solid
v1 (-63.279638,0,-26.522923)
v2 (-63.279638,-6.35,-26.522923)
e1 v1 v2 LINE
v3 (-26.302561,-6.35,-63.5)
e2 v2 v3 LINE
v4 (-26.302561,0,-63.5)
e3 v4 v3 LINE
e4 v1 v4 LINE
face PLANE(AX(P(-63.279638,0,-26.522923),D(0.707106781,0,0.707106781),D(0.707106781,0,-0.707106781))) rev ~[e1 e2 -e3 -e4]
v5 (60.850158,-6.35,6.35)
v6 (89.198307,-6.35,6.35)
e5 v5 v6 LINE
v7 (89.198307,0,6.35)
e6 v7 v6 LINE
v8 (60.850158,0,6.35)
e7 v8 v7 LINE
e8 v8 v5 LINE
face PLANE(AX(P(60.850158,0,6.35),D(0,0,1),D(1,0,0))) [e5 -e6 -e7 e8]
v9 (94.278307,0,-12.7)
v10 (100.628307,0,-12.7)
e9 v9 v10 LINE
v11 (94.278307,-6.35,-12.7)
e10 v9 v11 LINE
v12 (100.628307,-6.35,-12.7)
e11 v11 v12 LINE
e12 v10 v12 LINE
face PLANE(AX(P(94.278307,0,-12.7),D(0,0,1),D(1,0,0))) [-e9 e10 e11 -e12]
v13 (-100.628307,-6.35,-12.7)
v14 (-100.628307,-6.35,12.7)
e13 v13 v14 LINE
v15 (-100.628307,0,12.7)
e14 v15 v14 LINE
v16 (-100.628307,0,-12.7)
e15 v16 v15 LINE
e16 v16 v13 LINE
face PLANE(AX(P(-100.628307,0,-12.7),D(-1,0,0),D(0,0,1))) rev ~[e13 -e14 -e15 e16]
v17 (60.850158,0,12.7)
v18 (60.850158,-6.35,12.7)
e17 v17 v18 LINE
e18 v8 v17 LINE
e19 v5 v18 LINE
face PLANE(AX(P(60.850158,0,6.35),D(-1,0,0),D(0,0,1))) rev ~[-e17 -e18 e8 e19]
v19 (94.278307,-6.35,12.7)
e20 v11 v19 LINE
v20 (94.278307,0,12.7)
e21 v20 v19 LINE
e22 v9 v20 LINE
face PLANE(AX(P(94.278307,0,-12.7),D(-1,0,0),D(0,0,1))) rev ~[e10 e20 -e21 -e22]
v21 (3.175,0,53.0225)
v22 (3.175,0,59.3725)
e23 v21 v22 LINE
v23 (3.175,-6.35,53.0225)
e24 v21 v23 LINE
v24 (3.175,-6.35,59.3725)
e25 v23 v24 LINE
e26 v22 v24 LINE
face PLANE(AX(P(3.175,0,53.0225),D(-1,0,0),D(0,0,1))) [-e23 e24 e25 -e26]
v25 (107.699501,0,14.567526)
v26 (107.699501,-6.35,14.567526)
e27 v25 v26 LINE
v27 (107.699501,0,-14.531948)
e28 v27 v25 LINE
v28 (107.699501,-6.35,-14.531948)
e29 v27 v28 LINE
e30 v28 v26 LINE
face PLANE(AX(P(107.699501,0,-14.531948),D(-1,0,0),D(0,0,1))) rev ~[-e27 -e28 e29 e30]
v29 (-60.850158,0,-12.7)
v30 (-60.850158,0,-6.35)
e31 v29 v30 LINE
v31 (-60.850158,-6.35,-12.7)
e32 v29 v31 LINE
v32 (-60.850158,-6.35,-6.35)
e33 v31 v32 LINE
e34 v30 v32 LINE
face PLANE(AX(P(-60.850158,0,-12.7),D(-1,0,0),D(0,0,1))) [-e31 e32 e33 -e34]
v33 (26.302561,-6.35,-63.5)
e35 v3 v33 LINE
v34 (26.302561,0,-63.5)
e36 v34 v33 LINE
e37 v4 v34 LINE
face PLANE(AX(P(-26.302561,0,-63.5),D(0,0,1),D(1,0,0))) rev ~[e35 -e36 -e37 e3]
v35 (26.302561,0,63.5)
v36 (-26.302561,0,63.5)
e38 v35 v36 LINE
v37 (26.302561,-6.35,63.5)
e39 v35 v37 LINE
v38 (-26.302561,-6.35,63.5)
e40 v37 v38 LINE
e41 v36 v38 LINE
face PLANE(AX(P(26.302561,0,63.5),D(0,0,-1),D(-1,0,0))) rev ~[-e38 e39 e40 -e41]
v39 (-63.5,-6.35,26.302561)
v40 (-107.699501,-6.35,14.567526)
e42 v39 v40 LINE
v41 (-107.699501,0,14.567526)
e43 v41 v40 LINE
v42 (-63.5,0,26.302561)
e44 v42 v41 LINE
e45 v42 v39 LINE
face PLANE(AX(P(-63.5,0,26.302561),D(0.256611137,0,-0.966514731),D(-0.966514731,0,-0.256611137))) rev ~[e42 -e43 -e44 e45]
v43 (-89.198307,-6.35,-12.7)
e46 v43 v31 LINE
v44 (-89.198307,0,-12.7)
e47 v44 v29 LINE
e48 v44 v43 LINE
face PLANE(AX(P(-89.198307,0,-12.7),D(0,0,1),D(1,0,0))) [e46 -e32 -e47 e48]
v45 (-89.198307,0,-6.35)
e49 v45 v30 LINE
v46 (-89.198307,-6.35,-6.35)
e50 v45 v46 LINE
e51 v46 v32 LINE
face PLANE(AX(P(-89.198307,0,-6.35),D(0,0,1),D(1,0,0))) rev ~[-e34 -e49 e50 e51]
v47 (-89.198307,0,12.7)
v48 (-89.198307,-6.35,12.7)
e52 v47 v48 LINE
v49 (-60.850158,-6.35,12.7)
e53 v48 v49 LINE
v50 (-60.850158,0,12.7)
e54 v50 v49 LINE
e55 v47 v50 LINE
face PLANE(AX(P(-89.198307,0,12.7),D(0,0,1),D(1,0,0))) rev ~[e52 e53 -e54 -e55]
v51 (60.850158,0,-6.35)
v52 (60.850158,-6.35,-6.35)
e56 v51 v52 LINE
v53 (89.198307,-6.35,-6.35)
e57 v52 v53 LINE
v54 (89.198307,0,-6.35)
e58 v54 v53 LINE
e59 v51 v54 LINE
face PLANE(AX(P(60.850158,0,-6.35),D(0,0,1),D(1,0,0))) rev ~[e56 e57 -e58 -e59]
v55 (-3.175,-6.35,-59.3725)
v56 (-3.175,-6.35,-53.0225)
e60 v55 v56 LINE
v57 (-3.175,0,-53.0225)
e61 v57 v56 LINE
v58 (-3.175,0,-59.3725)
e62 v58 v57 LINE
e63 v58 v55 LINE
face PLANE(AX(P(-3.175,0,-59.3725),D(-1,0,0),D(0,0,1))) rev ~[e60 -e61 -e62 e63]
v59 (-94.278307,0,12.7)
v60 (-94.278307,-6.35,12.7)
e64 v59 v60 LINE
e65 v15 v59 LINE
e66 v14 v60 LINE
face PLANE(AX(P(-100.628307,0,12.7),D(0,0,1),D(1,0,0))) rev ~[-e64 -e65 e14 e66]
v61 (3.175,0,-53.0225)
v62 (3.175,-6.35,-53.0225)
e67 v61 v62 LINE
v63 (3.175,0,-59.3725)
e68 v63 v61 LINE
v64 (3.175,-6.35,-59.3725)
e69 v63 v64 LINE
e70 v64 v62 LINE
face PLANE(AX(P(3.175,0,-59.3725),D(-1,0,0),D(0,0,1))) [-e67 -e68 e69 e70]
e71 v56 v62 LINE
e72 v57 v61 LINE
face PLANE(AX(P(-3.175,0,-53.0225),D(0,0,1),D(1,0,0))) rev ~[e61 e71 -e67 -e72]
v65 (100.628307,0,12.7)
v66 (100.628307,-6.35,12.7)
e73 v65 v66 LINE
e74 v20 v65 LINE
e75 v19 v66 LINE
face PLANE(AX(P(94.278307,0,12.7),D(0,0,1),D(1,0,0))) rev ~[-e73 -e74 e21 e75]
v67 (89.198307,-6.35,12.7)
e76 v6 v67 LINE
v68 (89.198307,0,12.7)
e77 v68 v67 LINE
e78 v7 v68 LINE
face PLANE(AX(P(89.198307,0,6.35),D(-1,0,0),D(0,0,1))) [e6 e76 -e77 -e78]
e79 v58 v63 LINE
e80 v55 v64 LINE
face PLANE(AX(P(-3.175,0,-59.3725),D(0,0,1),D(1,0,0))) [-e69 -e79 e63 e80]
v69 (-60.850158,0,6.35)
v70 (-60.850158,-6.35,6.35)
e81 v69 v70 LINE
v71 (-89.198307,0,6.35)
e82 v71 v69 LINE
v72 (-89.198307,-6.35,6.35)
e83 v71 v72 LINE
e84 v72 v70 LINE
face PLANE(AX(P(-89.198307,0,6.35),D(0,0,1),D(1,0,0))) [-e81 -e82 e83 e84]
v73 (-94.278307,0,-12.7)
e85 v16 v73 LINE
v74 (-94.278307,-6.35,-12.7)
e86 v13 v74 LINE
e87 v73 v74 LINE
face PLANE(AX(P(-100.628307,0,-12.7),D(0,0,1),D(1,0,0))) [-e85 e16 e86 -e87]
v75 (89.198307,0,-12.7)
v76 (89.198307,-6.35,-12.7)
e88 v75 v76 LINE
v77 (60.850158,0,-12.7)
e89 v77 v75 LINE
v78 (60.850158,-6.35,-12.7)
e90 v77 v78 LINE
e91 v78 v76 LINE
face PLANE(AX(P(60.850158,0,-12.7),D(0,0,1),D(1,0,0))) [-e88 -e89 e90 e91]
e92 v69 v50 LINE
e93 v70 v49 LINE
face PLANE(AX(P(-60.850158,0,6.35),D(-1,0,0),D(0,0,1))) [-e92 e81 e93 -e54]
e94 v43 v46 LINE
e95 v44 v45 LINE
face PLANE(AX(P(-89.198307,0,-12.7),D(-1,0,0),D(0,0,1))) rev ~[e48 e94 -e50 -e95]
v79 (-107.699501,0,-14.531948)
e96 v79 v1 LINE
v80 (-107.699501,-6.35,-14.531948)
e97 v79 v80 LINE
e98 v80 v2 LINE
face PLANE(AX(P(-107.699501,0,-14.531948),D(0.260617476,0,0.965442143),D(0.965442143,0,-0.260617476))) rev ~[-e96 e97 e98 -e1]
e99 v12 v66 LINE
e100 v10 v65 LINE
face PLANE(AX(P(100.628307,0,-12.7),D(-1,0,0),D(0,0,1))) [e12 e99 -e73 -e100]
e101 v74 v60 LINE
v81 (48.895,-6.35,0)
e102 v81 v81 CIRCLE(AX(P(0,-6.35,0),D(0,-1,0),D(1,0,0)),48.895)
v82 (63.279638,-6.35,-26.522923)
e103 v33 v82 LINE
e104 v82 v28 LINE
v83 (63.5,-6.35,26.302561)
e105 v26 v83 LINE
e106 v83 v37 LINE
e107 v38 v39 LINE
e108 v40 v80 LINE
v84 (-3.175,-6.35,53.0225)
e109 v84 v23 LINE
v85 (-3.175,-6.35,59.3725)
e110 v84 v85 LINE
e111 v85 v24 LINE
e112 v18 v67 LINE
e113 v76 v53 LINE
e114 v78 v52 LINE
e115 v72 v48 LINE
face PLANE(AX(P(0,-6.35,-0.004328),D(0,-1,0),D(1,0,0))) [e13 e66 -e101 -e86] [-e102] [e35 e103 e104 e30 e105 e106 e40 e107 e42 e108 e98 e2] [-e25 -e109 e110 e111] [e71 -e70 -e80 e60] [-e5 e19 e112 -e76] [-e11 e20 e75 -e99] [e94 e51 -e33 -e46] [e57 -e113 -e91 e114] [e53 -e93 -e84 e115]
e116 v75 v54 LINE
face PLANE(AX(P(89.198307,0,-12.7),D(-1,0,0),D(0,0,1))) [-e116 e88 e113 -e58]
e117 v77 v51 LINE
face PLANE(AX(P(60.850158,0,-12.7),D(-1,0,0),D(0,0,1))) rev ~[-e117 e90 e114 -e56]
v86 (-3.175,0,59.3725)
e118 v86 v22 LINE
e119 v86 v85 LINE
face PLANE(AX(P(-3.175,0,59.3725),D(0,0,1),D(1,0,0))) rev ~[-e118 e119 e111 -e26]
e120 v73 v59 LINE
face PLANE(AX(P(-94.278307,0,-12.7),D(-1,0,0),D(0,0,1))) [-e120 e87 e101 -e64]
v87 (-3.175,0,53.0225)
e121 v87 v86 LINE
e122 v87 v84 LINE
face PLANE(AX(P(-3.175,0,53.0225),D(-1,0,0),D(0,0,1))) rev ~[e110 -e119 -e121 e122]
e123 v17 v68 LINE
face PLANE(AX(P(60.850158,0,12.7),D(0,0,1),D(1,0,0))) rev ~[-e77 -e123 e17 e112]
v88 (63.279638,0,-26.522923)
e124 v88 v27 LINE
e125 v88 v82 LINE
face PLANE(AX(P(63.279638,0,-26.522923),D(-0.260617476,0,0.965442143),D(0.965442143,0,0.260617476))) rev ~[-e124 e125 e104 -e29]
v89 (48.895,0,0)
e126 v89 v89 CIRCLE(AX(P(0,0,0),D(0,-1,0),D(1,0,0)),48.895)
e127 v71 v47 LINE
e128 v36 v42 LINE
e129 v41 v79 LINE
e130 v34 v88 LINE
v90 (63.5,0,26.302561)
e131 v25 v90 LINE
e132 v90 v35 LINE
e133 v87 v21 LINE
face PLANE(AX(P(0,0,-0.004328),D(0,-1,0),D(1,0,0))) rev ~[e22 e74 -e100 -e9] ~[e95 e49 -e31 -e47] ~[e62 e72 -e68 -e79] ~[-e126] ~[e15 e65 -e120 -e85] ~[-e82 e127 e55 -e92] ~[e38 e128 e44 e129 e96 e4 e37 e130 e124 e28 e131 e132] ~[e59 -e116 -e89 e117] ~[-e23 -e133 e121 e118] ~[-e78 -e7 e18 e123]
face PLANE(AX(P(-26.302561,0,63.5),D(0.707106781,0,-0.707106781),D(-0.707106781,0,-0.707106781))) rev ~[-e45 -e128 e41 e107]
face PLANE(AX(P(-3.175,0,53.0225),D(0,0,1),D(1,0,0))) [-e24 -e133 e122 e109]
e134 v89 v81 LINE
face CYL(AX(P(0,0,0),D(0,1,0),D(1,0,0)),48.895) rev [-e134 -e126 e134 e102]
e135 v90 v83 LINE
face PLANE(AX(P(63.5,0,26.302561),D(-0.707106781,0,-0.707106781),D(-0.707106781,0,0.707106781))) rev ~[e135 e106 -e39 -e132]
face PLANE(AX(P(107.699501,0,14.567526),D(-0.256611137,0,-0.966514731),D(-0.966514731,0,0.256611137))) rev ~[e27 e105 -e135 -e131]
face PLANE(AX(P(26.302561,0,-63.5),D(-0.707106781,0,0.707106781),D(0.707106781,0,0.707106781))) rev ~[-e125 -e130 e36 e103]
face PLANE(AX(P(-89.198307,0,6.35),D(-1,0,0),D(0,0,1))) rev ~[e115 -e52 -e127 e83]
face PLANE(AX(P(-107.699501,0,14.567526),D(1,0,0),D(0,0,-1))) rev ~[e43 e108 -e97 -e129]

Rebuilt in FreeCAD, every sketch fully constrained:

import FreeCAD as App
import Part
import Sketcher

V = App.Vector
Q = App.Units.Quantity

doc = App.newDocument("Part")
body = doc.addObject("PartDesign::Body", "Body")

sketch1 = body.newObject("Sketcher::SketchObject", "Sketch")
sketch1.AttachmentSupport = (doc.getObject("XZ_Plane"), [""])
sketch1.MapMode = "FlatFace"
sketch1.addGeometry(Part.LineSegment(V(26.302561, 63.5, 0), V(-26.302561, 63.5, 0)), False)
sketch1.addGeometry(Part.LineSegment(V(-26.302561, 63.5, 0), V(-63.5, 26.302561, 0)), False)
sketch1.addGeometry(Part.LineSegment(V(-63.5, 26.302561, 0), V(-107.699501, 14.567526, 0)), False)
sketch1.addGeometry(Part.LineSegment(V(-107.699501, 14.567526, 0), V(-107.699501, -14.531948, 0)), False)
sketch1.addGeometry(Part.LineSegment(V(-107.699501, -14.531948, 0), V(-63.279638, -26.522923, 0)), False)
sketch1.addGeometry(Part.LineSegment(V(-63.279638, -26.522923, 0), V(-26.302561, -63.5, 0)), False)
sketch1.addGeometry(Part.LineSegment(V(-26.302561, -63.5, 0), V(26.302561, -63.5, 0)), False)
sketch1.addGeometry(Part.LineSegment(V(26.302561, -63.5, 0), V(63.279638, -26.522923, 0)), False)
sketch1.addGeometry(Part.LineSegment(V(63.279638, -26.522923, 0), V(107.699501, -14.531948, 0)), False)
sketch1.addGeometry(Part.LineSegment(V(107.699501, -14.531948, 0), V(107.699501, 14.567526, 0)), False)
sketch1.addGeometry(Part.LineSegment(V(107.699501, 14.567526, 0), V(63.5, 26.302561, 0)), False)
sketch1.addGeometry(Part.LineSegment(V(63.5, 26.302561, 0), V(26.302561, 63.5, 0)), False)
sketch1.addGeometry(Part.LineSegment(V(-60.850158, -12.7, 0), V(-89.198307, -12.7, 0)), False)
sketch1.addGeometry(Part.LineSegment(V(-89.198307, -12.7, 0), V(-89.198307, -6.35, 0)), False)
sketch1.addGeometry(Part.LineSegment(V(-89.198307, -6.35, 0), V(-60.850158, -6.35, 0)), False)
sketch1.addGeometry(Part.LineSegment(V(-60.850158, -6.35, 0), V(-60.850158, -12.7, 0)), False)
sketch1.addGeometry(Part.LineSegment(V(3.175, -59.3725, 0), V(-3.175, -59.3725, 0)), False)
sketch1.addGeometry(Part.LineSegment(V(-3.175, -59.3725, 0), V(-3.175, -53.0225, 0)), False)
sketch1.addGeometry(Part.LineSegment(V(-3.175, -53.0225, 0), V(3.175, -53.0225, 0)), False)
sketch1.addGeometry(Part.LineSegment(V(3.175, -53.0225, 0), V(3.175, -59.3725, 0)), False)
sketch1.addGeometry(Part.LineSegment(V(89.198307, -12.7, 0), V(60.850158, -12.7, 0)), False)
sketch1.addGeometry(Part.LineSegment(V(60.850158, -12.7, 0), V(60.850158, -6.35, 0)), False)
sketch1.addGeometry(Part.LineSegment(V(60.850158, -6.35, 0), V(89.198307, -6.35, 0)), False)
sketch1.addGeometry(Part.LineSegment(V(89.198307, -6.35, 0), V(89.198307, -12.7, 0)), False)
sketch1.addGeometry(Part.LineSegment(V(-94.278307, -12.7, 0), V(-100.628307, -12.7, 0)), False)
sketch1.addGeometry(Part.LineSegment(V(-100.628307, -12.7, 0), V(-100.628307, 12.7, 0)), False)
sketch1.addGeometry(Part.LineSegment(V(-100.628307, 12.7, 0), V(-94.278307, 12.7, 0)), False)
sketch1.addGeometry(Part.LineSegment(V(-94.278307, 12.7, 0), V(-94.278307, -12.7, 0)), False)
sketch1.addGeometry(Part.LineSegment(V(-60.850158, 6.35, 0), V(-89.198307, 6.35, 0)), False)
sketch1.addGeometry(Part.LineSegment(V(-89.198307, 6.35, 0), V(-89.198307, 12.7, 0)), False)
sketch1.addGeometry(Part.LineSegment(V(-89.198307, 12.7, 0), V(-60.850158, 12.7, 0)), False)
sketch1.addGeometry(Part.LineSegment(V(-60.850158, 12.7, 0), V(-60.850158, 6.35, 0)), False)
sketch1.addGeometry(Part.Circle(V(0, 0, 0), V(0, 0, 1), 48.895), False)
sketch1.addGeometry(Part.LineSegment(V(89.198307, 6.35, 0), V(60.850158, 6.35, 0)), False)
sketch1.addGeometry(Part.LineSegment(V(60.850158, 6.35, 0), V(60.850158, 12.7, 0)), False)
sketch1.addGeometry(Part.LineSegment(V(60.850158, 12.7, 0), V(89.198307, 12.7, 0)), False)
sketch1.addGeometry(Part.LineSegment(V(89.198307, 12.7, 0), V(89.198307, 6.35, 0)), False)
sketch1.addGeometry(Part.LineSegment(V(100.628307, -12.7, 0), V(94.278307, -12.7, 0)), False)
sketch1.addGeometry(Part.LineSegment(V(94.278307, -12.7, 0), V(94.278307, 12.7, 0)), False)
sketch1.addGeometry(Part.LineSegment(V(94.278307, 12.7, 0), V(100.628307, 12.7, 0)), False)
sketch1.addGeometry(Part.LineSegment(V(100.628307, 12.7, 0), V(100.628307, -12.7, 0)), False)
sketch1.addGeometry(Part.LineSegment(V(3.175, 53.0225, 0), V(-3.175, 53.0225, 0)), False)
sketch1.addGeometry(Part.LineSegment(V(-3.175, 53.0225, 0), V(-3.175, 59.3725, 0)), False)
sketch1.addGeometry(Part.LineSegment(V(-3.175, 59.3725, 0), V(3.175, 59.3725, 0)), False)
sketch1.addGeometry(Part.LineSegment(V(3.175, 59.3725, 0), V(3.175, 53.0225, 0)), False)
sketch1.addConstraint(Sketcher.Constraint("Coincident", 0, 2, 1, 1))
sketch1.addConstraint(Sketcher.Constraint("Coincident", 1, 2, 2, 1))
sketch1.addConstraint(Sketcher.Constraint("Coincident", 2, 2, 3, 1))
sketch1.addConstraint(Sketcher.Constraint("Coincident", 3, 2, 4, 1))
sketch1.addConstraint(Sketcher.Constraint("Coincident", 4, 2, 5, 1))
sketch1.addConstraint(Sketcher.Constraint("Coincident", 5, 2, 6, 1))
sketch1.addConstraint(Sketcher.Constraint("Coincident", 6, 2, 7, 1))
sketch1.addConstraint(Sketcher.Constraint("Coincident", 7, 2, 8, 1))
sketch1.addConstraint(Sketcher.Constraint("Coincident", 8, 2, 9, 1))
sketch1.addConstraint(Sketcher.Constraint("Coincident", 9, 2, 10, 1))
sketch1.addConstraint(Sketcher.Constraint("Coincident", 10, 2, 11, 1))
sketch1.addConstraint(Sketcher.Constraint("Coincident", 11, 2, 0, 1))
sketch1.addConstraint(Sketcher.Constraint("Coincident", 12, 2, 13, 1))
sketch1.addConstraint(Sketcher.Constraint("Coincident", 13, 2, 14, 1))
sketch1.addConstraint(Sketcher.Constraint("Coincident", 14, 2, 15, 1))
sketch1.addConstraint(Sketcher.Constraint("Coincident", 15, 2, 12, 1))
sketch1.addConstraint(Sketcher.Constraint("Coincident", 16, 2, 17, 1))
sketch1.addConstraint(Sketcher.Constraint("Coincident", 17, 2, 18, 1))
sketch1.addConstraint(Sketcher.Constraint("Coincident", 18, 2, 19, 1))
sketch1.addConstraint(Sketcher.Constraint("Coincident", 19, 2, 16, 1))
sketch1.addConstraint(Sketcher.Constraint("Coincident", 20, 2, 21, 1))
sketch1.addConstraint(Sketcher.Constraint("Coincident", 21, 2, 22, 1))
sketch1.addConstraint(Sketcher.Constraint("Coincident", 22, 2, 23, 1))
sketch1.addConstraint(Sketcher.Constraint("Coincident", 23, 2, 20, 1))
sketch1.addConstraint(Sketcher.Constraint("Coincident", 24, 2, 25, 1))
sketch1.addConstraint(Sketcher.Constraint("Coincident", 25, 2, 26, 1))
sketch1.addConstraint(Sketcher.Constraint("Coincident", 26, 2, 27, 1))
sketch1.addConstraint(Sketcher.Constraint("Coincident", 27, 2, 24, 1))
sketch1.addConstraint(Sketcher.Constraint("Coincident", 28, 2, 29, 1))
sketch1.addConstraint(Sketcher.Constraint("Coincident", 29, 2, 30, 1))
sketch1.addConstraint(Sketcher.Constraint("Coincident", 30, 2, 31, 1))
sketch1.addConstraint(Sketcher.Constraint("Coincident", 31, 2, 28, 1))
sketch1.addConstraint(Sketcher.Constraint("Coincident", 33, 2, 34, 1))
sketch1.addConstraint(Sketcher.Constraint("Coincident", 34, 2, 35, 1))
sketch1.addConstraint(Sketcher.Constraint("Coincident", 35, 2, 36, 1))
sketch1.addConstraint(Sketcher.Constraint("Coincident", 36, 2, 33, 1))
sketch1.addConstraint(Sketcher.Constraint("Coincident", 37, 2, 38, 1))
sketch1.addConstraint(Sketcher.Constraint("Coincident", 38, 2, 39, 1))
sketch1.addConstraint(Sketcher.Constraint("Coincident", 39, 2, 40, 1))
sketch1.addConstraint(Sketcher.Constraint("Coincident", 40, 2, 37, 1))
sketch1.addConstraint(Sketcher.Constraint("Coincident", 41, 2, 42, 1))
sketch1.addConstraint(Sketcher.Constraint("Coincident", 42, 2, 43, 1))
sketch1.addConstraint(Sketcher.Constraint("Coincident", 43, 2, 44, 1))
sketch1.addConstraint(Sketcher.Constraint("Coincident", 44, 2, 41, 1))
sketch1.addConstraint(Sketcher.Constraint("Horizontal", 0))
sketch1.addConstraint(Sketcher.Constraint("Vertical", 3))
sketch1.addConstraint(Sketcher.Constraint("Horizontal", 6))
sketch1.addConstraint(Sketcher.Constraint("Vertical", 9))
sketch1.addConstraint(Sketcher.Constraint("Horizontal", 12))
sketch1.addConstraint(Sketcher.Constraint("Vertical", 13))
sketch1.addConstraint(Sketcher.Constraint("Horizontal", 14))
sketch1.addConstraint(Sketcher.Constraint("Vertical", 15))
sketch1.addConstraint(Sketcher.Constraint("Horizontal", 16))
sketch1.addConstraint(Sketcher.Constraint("Vertical", 17))
sketch1.addConstraint(Sketcher.Constraint("Horizontal", 18))
sketch1.addConstraint(Sketcher.Constraint("Vertical", 19))
sketch1.addConstraint(Sketcher.Constraint("Horizontal", 20))
sketch1.addConstraint(Sketcher.Constraint("Vertical", 21))
sketch1.addConstraint(Sketcher.Constraint("Horizontal", 22))
sketch1.addConstraint(Sketcher.Constraint("Vertical", 23))
sketch1.addConstraint(Sketcher.Constraint("Horizontal", 24))
sketch1.addConstraint(Sketcher.Constraint("Vertical", 25))
sketch1.addConstraint(Sketcher.Constraint("Horizontal", 26))
sketch1.addConstraint(Sketcher.Constraint("Vertical", 27))
sketch1.addConstraint(Sketcher.Constraint("Horizontal", 28))
sketch1.addConstraint(Sketcher.Constraint("Vertical", 29))
sketch1.addConstraint(Sketcher.Constraint("Horizontal", 30))
sketch1.addConstraint(Sketcher.Constraint("Vertical", 31))
sketch1.addConstraint(Sketcher.Constraint("Horizontal", 33))
sketch1.addConstraint(Sketcher.Constraint("Vertical", 34))
sketch1.addConstraint(Sketcher.Constraint("Horizontal", 35))
sketch1.addConstraint(Sketcher.Constraint("Vertical", 36))
sketch1.addConstraint(Sketcher.Constraint("Horizontal", 37))
sketch1.addConstraint(Sketcher.Constraint("Vertical", 38))
sketch1.addConstraint(Sketcher.Constraint("Horizontal", 39))
sketch1.addConstraint(Sketcher.Constraint("Vertical", 40))
sketch1.addConstraint(Sketcher.Constraint("Horizontal", 41))
sketch1.addConstraint(Sketcher.Constraint("Vertical", 42))
sketch1.addConstraint(Sketcher.Constraint("Horizontal", 43))
sketch1.addConstraint(Sketcher.Constraint("Vertical", 44))
sketch1.addConstraint(Sketcher.Constraint("Coincident", 32, 3, -1, 1))
sketch1.addConstraint(Sketcher.Constraint("Symmetric", 0, 2, 6, 2, -1, 1))
sketch1.addConstraint(Sketcher.Constraint("Symmetric", 22, 2, 28, 2, -1, 1))
sketch1.addConstraint(Sketcher.Constraint("Symmetric", 20, 2, 30, 2, -1, 1))
sketch1.addConstraint(Sketcher.Constraint("Symmetric", 14, 2, 33, 2, -1, 1))
sketch1.addConstraint(Sketcher.Constraint("Symmetric", 12, 2, 35, 2, -1, 1))
sketch1.addConstraint(Sketcher.Constraint("Symmetric", 26, 2, 37, 2, -1, 1))
sketch1.addConstraint(Sketcher.Constraint("Symmetric", 24, 2, 39, 2, -1, 1))
sketch1.addConstraint(Sketcher.Constraint("Symmetric", 18, 2, 41, 2, -1, 1))
sketch1.addConstraint(Sketcher.Constraint("Symmetric", 16, 2, 43, 2, -1, 1))
sketch1.addConstraint(Sketcher.Constraint("Symmetric", 4, 2, 7, 2, -2))
sketch1.addConstraint(Sketcher.Constraint("Symmetric", 3, 2, 8, 2, -2))
sketch1.addConstraint(Sketcher.Constraint("Symmetric", 1, 2, 10, 2, -2))
sketch1.addConstraint(Sketcher.Constraint("Symmetric", 15, 2, 20, 2, -2))
sketch1.addConstraint(Sketcher.Constraint("Symmetric", 13, 2, 22, 2, -2))
sketch1.addConstraint(Sketcher.Constraint("Perpendicular", 1, 5))
sketch1.addConstraint(Sketcher.Constraint("Perpendicular", 5, 7))
sketch1.addConstraint(Sketcher.Constraint("Perpendicular", 7, 11))
sketch1.addConstraint(Sketcher.Constraint("Horizontal", 2, 2, 9, 2))
sketch1.addConstraint(Sketcher.Constraint("Horizontal", 23, 2, 24, 2))
sketch1.addConstraint(Sketcher.Constraint("Horizontal", 26, 2, 29, 2))
sketch1.addConstraint(Sketcher.Constraint("Vertical", 0, 2, 5, 2))
sketch1.addConstraint(Sketcher.Constraint("Vertical", 17, 2, 41, 2))
sketch1.addConstraint(Sketcher.Constraint("Equal", 18, 24))
sketch1.addConstraint(Sketcher.Constraint("Equal", 43, 13))
sketch1.addConstraint(Sketcher.Constraint("Equal", 15, 17))
sketch1.addConstraint(Sketcher.Constraint("Diameter", 32, Q("3.85 in")))
sketch1.addConstraint(Sketcher.Constraint("DistanceY", 25, 1, 25, 2, Q("1 in")))
sketch1.addConstraint(Sketcher.Constraint("DistanceY", 6, 2, 0, 2, Q("5 in")))
sketch1.addConstraint(Sketcher.Constraint("DistanceX", 16, 2, 16, 1, Q("0.25 in")))
sketch1.addConstraint(Sketcher.Constraint("DistanceX", 1, 2, -1, 1, Q("2.5 in")))
sketch1.addConstraint(Sketcher.Constraint("DistanceX", 26, 2, 13, 2, Q("0.2 in")))
sketch1.addConstraint(Sketcher.Constraint("DistanceY", 16, 2, -1, 1, Q("2.3375 in")))
sketch1.addConstraint(Sketcher.Constraint("DistanceX", 12, 2, 12, 1, Q("28.348149 mm")))
sketch1.addConstraint(Sketcher.Constraint("DistanceX", 2, 2, -1, 1, Q("107.699501 mm")))
sketch1.addConstraint(Sketcher.Constraint("DistanceX", 4, 2, 6, 2, Q("89.582199 mm")))
sketch1.addConstraint(Sketcher.Constraint("Distance", 2, Q("45.730809 mm")))
sketch1.addConstraint(Sketcher.Constraint("DistanceX", 0, 2, 0, 1, Q("52.605122 mm")))
sketch1.addConstraint(Sketcher.Constraint("DistanceY", 3, 2, 3, 1, Q("29.099474 mm")))
sketch1.addConstraint(Sketcher.Constraint("DistanceX", 12, 2, 4, 2, Q("25.918669 mm")))
pad1 = body.newObject("PartDesign::Pad", "Pad")
pad1.Profile = sketch1
pad1.Length = Q("0.25 in")

doc.recompute()
